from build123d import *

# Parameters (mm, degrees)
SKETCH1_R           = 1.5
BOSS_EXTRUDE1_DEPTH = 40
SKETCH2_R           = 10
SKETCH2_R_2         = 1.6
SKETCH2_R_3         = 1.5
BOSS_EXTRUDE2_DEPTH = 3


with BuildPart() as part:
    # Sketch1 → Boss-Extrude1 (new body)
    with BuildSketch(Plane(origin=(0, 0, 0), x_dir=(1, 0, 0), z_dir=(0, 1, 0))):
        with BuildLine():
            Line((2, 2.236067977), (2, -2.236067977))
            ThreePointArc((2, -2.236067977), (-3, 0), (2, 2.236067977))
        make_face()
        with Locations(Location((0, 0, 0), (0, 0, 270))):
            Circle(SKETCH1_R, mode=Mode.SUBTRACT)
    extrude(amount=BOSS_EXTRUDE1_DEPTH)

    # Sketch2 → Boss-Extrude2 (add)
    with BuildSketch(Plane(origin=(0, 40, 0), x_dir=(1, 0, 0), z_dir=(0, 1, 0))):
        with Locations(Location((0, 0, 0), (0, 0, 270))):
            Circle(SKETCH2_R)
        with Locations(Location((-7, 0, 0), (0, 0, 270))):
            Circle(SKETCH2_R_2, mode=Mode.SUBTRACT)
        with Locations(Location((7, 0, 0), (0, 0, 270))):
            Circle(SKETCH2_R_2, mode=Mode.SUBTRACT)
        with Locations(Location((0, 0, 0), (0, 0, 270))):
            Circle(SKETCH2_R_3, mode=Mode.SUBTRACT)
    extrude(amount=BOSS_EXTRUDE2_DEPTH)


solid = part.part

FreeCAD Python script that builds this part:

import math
import FreeCAD as App
import Part
import Sketcher

V = App.Vector
Q = App.Units.Quantity

doc = App.newDocument("Part")
body = doc.addObject("PartDesign::Body", "Body")

sketch1 = body.newObject("Sketcher::SketchObject", "Sketch")
sketch1.AttachmentSupport = (doc.getObject("XZ_Plane"), [""])
sketch1.MapMode = "FlatFace"
sketch1.addGeometry([
    Part.LineSegment(V(2, 2.2, 0), V(2, -2.2, 0)),
    Part.ArcOfCircle(Part.Circle(V(0, 0, 0), V(0, 0, 1), 3), math.radians(48), math.radians(312)),
    Part.Circle(V(0, 0, 0), V(0, 0, 1), 1.5),
], False)
sketch1.addConstraint([
    Sketcher.Constraint("Coincident", 0, 1, 1, 1),
    Sketcher.Constraint("Coincident", 1, 2, 0, 2),
    Sketcher.Constraint("Vertical", 0),
    Sketcher.Constraint("Coincident", 1, 3, -1, 1),
    Sketcher.Constraint("Coincident", 2, 3, -1, 1),
    Sketcher.Constraint("Diameter", 2, Q("3 mm")),
    Sketcher.Constraint("Radius", 1, Q("3 mm")),
    Sketcher.Constraint("DistanceX", -1, 1, 0, 1, Q("2 mm")),
])
pad1 = body.newObject("PartDesign::Pad", "Pad")
pad1.Profile = sketch1
pad1.Length = 40
pad1.Reversed = True

sketch2 = body.newObject("Sketcher::SketchObject", "Sketch001")
sketch2.AttachmentSupport = (doc.getObject("XZ_Plane"), [""])
sketch2.MapMode = "FlatFace"
sketch2.AttachmentOffset = App.Placement(V(0, 0, -40), App.Rotation())
sketch2.addGeometry([
    Part.Circle(V(0, 0, 0), V(0, 0, 1), 10),
    Part.Circle(V(-7, 0, 0), V(0, 0, 1), 1.6),
    Part.Circle(V(7, 0, 0), V(0, 0, 1), 1.6),
    Part.Circle(V(0, 0, 0), V(0, 0, 1), 1.5),
], False)
sketch2.addConstraint([
    Sketcher.Constraint("Coincident", 0, 3, -1, 1),
    Sketcher.Constraint("Coincident", 3, 3, -1, 1),
    Sketcher.Constraint("Equal", 1, 2),
    Sketcher.Constraint("Symmetric", 1, 3, 2, 3, -1, 1),
    Sketcher.Constraint("PointOnObject", 1, 3, -1),
    Sketcher.Constraint("Diameter", 0, Q("20 mm")),
    Sketcher.Constraint("Diameter", 3, Q("3 mm")),
    Sketcher.Constraint("Diameter", 1, Q("3.2 mm")),
    Sketcher.Constraint("DistanceX", 1, 3, -1, 1, Q("7 mm")),
])
pad2 = body.newObject("PartDesign::Pad", "Pad001")
pad2.Profile = sketch2
pad2.Length = 3
pad2.Reversed = True

doc.recompute()
